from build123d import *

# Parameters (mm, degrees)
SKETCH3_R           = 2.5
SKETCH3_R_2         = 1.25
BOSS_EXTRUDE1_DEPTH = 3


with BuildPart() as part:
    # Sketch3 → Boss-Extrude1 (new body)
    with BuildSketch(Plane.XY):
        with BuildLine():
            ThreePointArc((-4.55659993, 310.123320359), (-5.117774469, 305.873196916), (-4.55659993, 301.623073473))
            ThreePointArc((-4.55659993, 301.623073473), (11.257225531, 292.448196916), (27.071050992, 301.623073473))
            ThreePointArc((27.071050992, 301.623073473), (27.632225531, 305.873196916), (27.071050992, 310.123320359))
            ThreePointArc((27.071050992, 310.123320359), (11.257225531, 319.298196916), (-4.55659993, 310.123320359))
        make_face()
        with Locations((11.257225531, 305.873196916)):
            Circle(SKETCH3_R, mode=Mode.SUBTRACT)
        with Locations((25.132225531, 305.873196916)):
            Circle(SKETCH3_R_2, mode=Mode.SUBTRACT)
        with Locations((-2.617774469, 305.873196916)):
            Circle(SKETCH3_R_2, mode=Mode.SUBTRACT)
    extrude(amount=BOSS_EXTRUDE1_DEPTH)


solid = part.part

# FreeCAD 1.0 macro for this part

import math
import FreeCAD as App
import Part
import Sketcher

doc = App.newDocument("Part")
body = doc.addObject("PartDesign::Body", "Body")

# Sketch on XY plane
sketch1 = doc.addObject("Sketcher::SketchObject", "Sketch")
body.addObject(sketch1)
sketch1.AttachmentSupport = (doc.XY_Plane, [""])
sketch1.MapMode = "FlatFace"
sketch1.addGeometry([
    Part.ArcOfCircle(Part.Circle(App.Vector(11.257226, 305.873197, 0), App.Vector(0, 0, 1), 16.375), math.radians(164.956666), math.radians(195.043334)),  # 0
    Part.ArcOfCircle(Part.Circle(App.Vector(11.257226, 310.663997, 0), App.Vector(0, 0, 1), 18.2158), math.radians(-150.242961), math.radians(-29.757039)),  # 1
    Part.ArcOfCircle(Part.Circle(App.Vector(11.257226, 305.873197, 0), App.Vector(0, 0, 1), 16.375), math.radians(-15.043334), math.radians(15.043334)),  # 2
    Part.ArcOfCircle(Part.Circle(App.Vector(11.257226, 301.082397, 0), App.Vector(0, 0, 1), 18.2158), math.radians(29.757039), math.radians(150.242961)),  # 3
    Part.Circle(App.Vector(-2.617774, 305.873197, 0), App.Vector(0, 0, 1), 1.25),  # 4
    Part.Circle(App.Vector(11.257226, 305.873197, 0), App.Vector(0, 0, 1), 2.5),  # 5
    Part.Circle(App.Vector(25.132226, 305.873197, 0), App.Vector(0, 0, 1), 1.25),  # 6
], False)
sketch1.addConstraint([
    Sketcher.Constraint("Coincident", 0, 2, 1, 1),
    Sketcher.Constraint("Coincident", 1, 2, 2, 1),
    Sketcher.Constraint("Coincident", 2, 2, 3, 1),
    Sketcher.Constraint("Coincident", 3, 2, 0, 1),
    Sketcher.Constraint("Coincident", 2, 3, 0, 3),
    Sketcher.Constraint("Coincident", 5, 3, 0, 3),
    Sketcher.Constraint("Equal", 0, 2),
    Sketcher.Constraint("Equal", 1, 3),
    Sketcher.Constraint("Equal", 4, 6),
    Sketcher.Constraint("Horizontal", 2, 3, 4, 3),
    Sketcher.Constraint("Horizontal", 5, 3, 6, 3),
    Sketcher.Constraint("Horizontal", 0, 2, 1, 2),
    Sketcher.Constraint("Horizontal", 2, 2, 3, 2),
    Sketcher.Constraint("Vertical", 1, 2, 2, 2),
    Sketcher.Constraint("Diameter", 5, 5.0),
    Sketcher.Constraint("Diameter", 4, 2.5),
    Sketcher.Constraint("Radius", 0, 16.375),
    Sketcher.Constraint("Radius", 1, 18.2158),
    Sketcher.Constraint("DistanceX", 4, 3, 0, 3, 13.875),
    Sketcher.Constraint("DistanceX", 2, 3, 6, 3, 13.875),
    Sketcher.Constraint("DistanceX", 0, 2, -1, 1, 4.5566),
    Sketcher.Constraint("DistanceY", 0, 3, 1, 3, 4.7908),
    Sketcher.Constraint("DistanceY", -1, 1, 2, 2, 310.12332),
])
pad1 = doc.addObject("PartDesign::Pad", "Pad")
body.addObject(pad1)
pad1.Profile = sketch1
pad1.Length = 3

doc.recompute()
